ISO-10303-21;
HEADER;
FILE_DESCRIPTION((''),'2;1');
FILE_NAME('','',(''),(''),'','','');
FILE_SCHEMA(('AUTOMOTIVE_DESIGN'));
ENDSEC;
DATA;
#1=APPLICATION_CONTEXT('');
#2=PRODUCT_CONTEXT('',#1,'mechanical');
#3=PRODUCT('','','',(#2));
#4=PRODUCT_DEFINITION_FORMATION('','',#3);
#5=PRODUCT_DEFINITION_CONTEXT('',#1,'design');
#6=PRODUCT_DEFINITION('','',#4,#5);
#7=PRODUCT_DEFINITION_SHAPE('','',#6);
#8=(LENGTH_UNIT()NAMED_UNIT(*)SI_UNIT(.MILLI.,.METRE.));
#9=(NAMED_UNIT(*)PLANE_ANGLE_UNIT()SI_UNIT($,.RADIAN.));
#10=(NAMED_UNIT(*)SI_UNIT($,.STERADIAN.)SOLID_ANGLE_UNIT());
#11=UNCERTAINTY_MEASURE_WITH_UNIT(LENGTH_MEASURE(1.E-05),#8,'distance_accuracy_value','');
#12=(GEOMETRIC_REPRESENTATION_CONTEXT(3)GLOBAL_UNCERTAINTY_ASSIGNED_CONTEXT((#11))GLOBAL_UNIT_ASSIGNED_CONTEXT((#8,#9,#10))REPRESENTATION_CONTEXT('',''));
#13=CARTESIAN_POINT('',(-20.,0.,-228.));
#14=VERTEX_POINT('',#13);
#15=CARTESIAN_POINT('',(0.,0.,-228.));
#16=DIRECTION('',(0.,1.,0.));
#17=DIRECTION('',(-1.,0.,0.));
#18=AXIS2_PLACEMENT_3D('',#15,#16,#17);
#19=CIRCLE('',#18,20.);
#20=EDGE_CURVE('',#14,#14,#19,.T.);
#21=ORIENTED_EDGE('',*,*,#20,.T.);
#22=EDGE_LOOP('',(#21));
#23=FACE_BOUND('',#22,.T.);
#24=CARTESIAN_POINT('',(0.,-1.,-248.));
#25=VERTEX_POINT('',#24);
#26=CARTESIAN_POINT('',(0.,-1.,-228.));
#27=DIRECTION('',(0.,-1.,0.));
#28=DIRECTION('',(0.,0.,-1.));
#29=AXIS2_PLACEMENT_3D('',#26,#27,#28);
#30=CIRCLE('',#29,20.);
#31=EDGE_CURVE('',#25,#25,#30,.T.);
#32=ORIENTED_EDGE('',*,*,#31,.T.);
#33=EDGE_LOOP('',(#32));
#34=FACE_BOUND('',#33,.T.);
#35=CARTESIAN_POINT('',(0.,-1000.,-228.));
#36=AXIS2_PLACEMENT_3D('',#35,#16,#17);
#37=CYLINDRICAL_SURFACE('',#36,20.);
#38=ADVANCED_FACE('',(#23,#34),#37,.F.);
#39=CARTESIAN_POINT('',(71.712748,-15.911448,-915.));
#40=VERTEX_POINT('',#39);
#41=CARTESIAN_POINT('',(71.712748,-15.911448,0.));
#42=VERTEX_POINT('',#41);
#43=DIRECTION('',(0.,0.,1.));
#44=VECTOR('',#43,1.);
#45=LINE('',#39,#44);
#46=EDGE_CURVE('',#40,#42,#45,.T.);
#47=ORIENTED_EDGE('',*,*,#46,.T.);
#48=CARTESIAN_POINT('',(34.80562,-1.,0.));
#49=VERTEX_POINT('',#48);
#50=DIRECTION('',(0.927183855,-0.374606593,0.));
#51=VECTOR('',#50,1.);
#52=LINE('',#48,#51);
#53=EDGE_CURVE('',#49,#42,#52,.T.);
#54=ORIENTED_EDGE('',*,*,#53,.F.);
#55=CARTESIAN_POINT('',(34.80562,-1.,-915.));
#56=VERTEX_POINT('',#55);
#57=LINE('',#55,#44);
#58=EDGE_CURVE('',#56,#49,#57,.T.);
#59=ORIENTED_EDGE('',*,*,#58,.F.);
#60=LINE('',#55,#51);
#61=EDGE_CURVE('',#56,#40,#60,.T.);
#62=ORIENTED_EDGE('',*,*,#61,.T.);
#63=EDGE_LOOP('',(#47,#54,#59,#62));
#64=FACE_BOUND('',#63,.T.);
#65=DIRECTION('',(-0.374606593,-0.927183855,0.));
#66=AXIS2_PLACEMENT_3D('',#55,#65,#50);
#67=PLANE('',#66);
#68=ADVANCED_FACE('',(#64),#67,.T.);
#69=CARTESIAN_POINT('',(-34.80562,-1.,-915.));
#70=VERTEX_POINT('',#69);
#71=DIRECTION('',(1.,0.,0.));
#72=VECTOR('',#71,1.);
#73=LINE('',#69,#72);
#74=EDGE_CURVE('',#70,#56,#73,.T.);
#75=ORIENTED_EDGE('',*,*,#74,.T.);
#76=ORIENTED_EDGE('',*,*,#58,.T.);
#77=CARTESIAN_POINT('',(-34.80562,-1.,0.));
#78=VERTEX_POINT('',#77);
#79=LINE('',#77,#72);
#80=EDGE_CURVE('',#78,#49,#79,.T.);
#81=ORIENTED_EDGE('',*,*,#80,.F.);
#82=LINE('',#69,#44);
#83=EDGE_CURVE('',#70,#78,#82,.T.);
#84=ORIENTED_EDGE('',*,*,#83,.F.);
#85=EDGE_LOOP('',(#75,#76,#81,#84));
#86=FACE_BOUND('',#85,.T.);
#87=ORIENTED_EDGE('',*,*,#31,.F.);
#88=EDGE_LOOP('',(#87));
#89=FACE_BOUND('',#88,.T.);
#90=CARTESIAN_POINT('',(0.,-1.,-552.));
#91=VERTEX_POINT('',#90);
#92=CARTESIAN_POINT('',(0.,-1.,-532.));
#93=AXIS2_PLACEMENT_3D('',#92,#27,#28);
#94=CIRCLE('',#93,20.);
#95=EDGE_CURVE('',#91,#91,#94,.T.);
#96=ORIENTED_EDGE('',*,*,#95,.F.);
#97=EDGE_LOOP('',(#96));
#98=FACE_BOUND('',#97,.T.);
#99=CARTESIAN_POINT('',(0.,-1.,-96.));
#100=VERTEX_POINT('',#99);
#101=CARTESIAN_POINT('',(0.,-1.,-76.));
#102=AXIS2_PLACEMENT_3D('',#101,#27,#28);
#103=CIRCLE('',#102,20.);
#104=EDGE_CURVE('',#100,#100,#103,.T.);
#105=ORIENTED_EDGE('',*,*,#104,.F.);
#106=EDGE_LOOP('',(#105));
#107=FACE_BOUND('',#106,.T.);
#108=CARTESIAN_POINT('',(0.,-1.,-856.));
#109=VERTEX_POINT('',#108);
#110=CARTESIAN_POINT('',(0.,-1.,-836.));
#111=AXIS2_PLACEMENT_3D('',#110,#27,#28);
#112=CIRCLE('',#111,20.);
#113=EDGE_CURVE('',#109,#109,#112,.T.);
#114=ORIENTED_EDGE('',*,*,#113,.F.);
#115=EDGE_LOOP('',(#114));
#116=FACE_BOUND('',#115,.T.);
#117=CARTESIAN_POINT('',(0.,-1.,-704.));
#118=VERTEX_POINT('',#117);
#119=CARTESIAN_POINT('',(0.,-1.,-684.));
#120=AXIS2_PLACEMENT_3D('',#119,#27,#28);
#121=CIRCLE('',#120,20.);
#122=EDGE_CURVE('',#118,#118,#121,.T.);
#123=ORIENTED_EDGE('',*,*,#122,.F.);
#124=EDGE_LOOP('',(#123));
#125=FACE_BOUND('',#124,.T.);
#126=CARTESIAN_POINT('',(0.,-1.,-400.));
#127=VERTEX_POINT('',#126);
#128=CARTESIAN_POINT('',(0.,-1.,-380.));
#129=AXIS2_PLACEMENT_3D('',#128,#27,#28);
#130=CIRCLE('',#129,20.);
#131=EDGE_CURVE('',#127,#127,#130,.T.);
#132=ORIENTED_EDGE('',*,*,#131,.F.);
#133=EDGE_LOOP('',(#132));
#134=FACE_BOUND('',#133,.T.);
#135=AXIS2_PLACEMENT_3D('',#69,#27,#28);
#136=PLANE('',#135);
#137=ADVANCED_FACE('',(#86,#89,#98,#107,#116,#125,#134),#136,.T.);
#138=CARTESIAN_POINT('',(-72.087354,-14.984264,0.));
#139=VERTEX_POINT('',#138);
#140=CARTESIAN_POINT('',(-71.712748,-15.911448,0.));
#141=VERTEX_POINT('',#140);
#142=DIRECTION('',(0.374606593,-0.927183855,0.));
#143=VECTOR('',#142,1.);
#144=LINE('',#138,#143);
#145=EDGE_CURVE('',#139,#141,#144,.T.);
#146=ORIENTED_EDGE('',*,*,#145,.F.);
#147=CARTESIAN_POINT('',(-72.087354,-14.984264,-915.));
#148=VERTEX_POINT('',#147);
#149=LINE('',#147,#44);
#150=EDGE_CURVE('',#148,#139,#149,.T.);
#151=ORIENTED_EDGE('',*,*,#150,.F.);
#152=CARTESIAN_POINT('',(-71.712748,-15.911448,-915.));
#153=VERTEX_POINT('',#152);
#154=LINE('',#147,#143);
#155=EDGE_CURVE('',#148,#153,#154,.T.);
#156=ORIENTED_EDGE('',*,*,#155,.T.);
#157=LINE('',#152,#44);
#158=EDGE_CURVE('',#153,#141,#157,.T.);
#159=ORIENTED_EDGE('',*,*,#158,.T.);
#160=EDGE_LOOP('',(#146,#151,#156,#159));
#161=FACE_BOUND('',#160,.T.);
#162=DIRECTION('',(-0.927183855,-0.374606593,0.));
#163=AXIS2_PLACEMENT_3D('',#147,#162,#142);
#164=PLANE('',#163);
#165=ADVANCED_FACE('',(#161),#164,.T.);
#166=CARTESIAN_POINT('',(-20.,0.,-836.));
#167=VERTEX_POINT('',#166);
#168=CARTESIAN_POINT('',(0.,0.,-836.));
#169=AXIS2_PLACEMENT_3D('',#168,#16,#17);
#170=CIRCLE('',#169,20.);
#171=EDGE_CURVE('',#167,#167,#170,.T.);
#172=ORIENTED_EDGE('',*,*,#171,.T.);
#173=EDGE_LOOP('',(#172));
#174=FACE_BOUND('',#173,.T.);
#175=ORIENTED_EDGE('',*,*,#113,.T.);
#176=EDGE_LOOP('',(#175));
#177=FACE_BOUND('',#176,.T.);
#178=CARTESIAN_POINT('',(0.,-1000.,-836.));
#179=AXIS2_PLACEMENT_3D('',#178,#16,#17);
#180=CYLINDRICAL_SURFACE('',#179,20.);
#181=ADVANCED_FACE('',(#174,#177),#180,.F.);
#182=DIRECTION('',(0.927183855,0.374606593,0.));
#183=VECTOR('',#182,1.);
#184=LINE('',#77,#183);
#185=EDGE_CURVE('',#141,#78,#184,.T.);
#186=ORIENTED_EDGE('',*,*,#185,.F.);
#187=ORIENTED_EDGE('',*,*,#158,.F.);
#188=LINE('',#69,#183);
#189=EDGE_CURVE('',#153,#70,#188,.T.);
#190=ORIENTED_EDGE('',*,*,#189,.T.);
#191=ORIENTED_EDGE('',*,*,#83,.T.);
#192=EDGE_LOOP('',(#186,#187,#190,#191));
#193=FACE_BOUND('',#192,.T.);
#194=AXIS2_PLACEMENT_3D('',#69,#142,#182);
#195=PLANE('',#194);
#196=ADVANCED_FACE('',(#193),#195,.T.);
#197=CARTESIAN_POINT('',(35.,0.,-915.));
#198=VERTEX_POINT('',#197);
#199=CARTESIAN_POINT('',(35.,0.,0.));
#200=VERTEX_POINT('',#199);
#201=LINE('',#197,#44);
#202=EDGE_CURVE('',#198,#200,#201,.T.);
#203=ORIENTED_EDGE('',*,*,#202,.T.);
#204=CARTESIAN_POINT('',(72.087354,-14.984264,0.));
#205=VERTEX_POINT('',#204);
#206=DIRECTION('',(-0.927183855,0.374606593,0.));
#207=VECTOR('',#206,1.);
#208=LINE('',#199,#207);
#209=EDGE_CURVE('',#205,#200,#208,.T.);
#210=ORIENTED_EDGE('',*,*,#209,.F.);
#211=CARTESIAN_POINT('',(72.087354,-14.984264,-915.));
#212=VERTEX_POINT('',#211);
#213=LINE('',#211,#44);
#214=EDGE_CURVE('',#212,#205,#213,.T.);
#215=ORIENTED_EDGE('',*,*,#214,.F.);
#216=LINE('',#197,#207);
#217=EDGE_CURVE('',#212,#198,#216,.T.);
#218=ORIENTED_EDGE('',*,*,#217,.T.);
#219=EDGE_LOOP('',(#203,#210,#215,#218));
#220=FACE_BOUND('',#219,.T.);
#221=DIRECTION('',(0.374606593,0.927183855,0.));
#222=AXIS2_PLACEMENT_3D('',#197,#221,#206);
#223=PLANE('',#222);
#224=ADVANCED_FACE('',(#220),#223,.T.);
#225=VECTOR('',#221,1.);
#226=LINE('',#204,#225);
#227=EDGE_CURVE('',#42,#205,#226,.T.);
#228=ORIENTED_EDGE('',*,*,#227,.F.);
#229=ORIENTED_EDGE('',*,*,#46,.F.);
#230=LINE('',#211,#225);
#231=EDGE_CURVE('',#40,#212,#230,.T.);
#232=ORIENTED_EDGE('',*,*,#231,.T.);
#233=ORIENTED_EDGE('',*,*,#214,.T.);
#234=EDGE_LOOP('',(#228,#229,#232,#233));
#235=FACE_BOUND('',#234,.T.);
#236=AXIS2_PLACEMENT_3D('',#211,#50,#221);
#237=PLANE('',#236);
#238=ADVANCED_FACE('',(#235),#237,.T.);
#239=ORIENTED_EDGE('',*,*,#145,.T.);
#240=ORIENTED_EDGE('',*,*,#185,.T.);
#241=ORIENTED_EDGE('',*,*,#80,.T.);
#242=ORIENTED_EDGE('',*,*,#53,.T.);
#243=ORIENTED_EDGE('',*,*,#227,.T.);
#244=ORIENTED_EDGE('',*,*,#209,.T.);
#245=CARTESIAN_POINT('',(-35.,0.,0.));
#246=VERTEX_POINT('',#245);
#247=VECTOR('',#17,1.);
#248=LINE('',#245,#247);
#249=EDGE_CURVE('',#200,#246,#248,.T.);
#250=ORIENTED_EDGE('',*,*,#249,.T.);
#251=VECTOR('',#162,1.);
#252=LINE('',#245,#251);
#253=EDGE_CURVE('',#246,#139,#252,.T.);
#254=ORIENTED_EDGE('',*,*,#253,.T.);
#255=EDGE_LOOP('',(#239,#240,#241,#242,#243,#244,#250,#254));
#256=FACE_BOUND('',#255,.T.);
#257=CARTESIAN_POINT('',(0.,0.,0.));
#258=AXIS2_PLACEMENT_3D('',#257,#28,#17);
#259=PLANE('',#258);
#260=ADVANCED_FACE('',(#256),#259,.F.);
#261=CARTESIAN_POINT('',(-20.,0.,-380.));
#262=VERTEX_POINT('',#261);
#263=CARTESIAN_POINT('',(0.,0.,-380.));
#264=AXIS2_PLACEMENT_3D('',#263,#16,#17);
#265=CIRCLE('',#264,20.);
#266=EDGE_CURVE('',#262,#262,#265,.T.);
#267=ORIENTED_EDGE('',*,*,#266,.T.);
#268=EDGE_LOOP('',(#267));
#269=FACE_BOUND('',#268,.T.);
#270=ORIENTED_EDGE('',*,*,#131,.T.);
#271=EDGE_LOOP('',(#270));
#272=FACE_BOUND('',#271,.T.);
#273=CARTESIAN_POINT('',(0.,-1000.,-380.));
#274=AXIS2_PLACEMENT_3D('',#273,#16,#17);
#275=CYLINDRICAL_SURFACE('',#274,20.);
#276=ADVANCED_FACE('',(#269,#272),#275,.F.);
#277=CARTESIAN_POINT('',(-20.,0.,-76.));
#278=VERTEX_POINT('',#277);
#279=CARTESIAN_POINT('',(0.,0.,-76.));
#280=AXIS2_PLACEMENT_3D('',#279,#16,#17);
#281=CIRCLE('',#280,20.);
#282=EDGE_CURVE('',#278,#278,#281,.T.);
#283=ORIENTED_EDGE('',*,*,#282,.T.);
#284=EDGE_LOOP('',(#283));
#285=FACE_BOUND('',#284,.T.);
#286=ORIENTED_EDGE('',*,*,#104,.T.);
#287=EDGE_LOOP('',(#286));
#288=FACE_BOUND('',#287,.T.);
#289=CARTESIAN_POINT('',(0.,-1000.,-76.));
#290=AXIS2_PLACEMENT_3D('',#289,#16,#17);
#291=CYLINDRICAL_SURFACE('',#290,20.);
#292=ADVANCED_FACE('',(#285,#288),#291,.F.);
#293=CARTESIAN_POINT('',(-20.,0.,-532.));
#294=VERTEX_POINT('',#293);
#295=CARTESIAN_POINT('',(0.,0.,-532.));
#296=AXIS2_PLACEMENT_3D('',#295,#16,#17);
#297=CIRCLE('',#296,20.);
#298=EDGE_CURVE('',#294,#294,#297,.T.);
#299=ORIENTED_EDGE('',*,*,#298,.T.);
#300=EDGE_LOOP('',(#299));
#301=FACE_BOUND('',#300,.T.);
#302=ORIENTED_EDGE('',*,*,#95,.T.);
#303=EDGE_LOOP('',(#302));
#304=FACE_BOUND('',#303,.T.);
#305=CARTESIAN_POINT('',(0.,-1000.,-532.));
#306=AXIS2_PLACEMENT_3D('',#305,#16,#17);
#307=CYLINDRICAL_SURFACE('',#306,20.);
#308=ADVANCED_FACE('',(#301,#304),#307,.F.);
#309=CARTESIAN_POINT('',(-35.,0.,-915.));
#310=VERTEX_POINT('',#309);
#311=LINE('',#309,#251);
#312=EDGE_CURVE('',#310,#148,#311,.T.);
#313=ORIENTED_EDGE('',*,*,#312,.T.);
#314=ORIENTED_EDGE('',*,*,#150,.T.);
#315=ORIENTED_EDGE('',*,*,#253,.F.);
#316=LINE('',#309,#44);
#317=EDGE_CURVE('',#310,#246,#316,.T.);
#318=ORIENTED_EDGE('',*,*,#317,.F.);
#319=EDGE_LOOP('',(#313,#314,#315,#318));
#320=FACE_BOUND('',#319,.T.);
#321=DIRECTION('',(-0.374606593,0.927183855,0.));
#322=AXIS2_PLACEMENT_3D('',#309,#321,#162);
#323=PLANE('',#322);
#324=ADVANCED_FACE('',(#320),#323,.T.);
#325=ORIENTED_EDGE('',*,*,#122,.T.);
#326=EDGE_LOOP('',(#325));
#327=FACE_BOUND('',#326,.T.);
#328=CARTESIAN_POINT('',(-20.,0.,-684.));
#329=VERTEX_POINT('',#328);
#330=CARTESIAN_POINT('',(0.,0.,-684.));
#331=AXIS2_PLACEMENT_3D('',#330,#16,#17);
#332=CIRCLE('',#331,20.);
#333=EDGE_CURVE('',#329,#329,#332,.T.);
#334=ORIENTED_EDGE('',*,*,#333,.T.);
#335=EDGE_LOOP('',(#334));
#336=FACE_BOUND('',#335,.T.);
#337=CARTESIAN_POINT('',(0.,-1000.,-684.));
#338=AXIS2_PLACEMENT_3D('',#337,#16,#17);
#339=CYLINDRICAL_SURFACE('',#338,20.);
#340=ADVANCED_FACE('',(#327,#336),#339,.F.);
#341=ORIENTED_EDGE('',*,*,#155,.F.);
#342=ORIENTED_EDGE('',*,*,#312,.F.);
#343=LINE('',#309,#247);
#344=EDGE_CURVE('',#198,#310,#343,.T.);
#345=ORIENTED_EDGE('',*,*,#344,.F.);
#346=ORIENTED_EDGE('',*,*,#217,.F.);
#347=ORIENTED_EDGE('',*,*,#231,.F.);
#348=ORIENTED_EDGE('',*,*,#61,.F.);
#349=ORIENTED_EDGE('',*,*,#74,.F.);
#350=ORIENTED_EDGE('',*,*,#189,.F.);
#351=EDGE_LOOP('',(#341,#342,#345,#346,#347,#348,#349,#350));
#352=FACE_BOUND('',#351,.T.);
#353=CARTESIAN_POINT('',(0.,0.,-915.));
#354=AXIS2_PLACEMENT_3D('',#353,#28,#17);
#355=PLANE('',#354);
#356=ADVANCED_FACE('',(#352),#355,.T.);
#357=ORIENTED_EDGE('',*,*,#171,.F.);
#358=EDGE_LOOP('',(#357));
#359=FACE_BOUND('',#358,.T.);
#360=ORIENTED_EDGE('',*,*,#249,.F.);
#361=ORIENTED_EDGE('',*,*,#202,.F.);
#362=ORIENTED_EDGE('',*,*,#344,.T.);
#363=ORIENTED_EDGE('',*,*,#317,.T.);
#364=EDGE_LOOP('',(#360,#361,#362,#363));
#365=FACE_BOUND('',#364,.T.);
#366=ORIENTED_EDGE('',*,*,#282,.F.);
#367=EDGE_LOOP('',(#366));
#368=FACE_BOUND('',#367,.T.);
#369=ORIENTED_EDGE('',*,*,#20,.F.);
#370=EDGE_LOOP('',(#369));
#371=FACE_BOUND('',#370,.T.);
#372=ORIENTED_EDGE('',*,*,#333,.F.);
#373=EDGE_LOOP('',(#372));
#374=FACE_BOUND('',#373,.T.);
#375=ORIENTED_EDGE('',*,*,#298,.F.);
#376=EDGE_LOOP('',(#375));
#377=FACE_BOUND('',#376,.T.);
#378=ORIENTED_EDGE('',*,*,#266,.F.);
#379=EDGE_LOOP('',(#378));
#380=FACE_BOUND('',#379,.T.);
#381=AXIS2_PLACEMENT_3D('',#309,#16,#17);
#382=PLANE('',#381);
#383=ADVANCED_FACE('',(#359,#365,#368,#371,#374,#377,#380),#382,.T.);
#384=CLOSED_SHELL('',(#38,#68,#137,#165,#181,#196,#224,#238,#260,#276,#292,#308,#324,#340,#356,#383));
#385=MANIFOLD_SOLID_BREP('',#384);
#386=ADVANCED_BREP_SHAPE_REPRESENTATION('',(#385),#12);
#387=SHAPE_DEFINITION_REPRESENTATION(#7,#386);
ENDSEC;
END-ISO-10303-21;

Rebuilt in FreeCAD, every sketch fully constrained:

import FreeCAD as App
import Part
import Sketcher
Q = App.Units.Quantity


def add_polygon(sketch, points):
    """Adds a closed chain of lines whose ends are joined by coincident constraints."""
    first, n = sketch.GeometryCount, len(points)
    for a, b in zip(points, points[1:] + points[:1]):
        sketch.addGeometry(Part.LineSegment(App.Vector(*a, 0), App.Vector(*b, 0)), False)
    for i in range(n):
        sketch.addConstraint(Sketcher.Constraint("Coincident", first + i, 2, first + (i + 1) % n, 1))

doc = App.newDocument("Part")
params = doc.addObject("Spreadsheet::Sheet", "Params")
for row, (alias, value) in enumerate([
    ("sketch1_width", "70 mm"),
    ("sketch1_length", "40 mm"),
    ("sketch1_length2", "1 mm"),
    ("pad1_length", "915 mm"),
    ("sketch2_diameter", "40 mm"),
    ("pocket1_length", "1000 mm"),
], start=1):
    params.set(f"A{row}", alias)
    params.set(f"B{row}", "=" + value)
    params.setAlias(f"B{row}", alias)

body = doc.addObject("PartDesign::Body", "Body")

sketch1 = doc.addObject("Sketcher::SketchObject", "Sketch")
body.addObject(sketch1)
sketch1.AttachmentSupport = (doc.XY_Plane, [""])
sketch1.MapMode = "FlatFace"
add_polygon(sketch1, [(35, 0), (-35, 0), (-72.1, -15), (-71.7, -15.9), (-34.8, -1), (34.8, -1), (71.7, -15.9), (72.1, -15)])
sketch1.addConstraint(Sketcher.Constraint("Horizontal", 0))
sketch1.addConstraint(Sketcher.Constraint("Horizontal", 4))
sketch1.addConstraint(Sketcher.Constraint("Symmetric", 0, 2, 7, 2, -1, 1))
sketch1.addConstraint(Sketcher.Constraint("Symmetric", 2, 2, 5, 2, -2))
sketch1.addConstraint(Sketcher.Constraint("Symmetric", 1, 2, 6, 2, -2))
sketch1.addConstraint(Sketcher.Constraint("Perpendicular", 1, 2))
sketch1.addConstraint(Sketcher.Constraint("Perpendicular", 2, 3))
sketch1.addConstraint(Sketcher.Constraint("Perpendicular", 5, 6))
sketch1.addConstraint(Sketcher.Constraint("DistanceX", 0, 2, 0, 1, Q("70 mm")))
sketch1.addConstraint(Sketcher.Constraint("Angle", 1, Q("-158 deg")))
sketch1.addConstraint(Sketcher.Constraint("Distance", 1, Q("40 mm")))
sketch1.addConstraint(Sketcher.Constraint("Distance", 2, Q("1 mm")))
sketch1.addConstraint(Sketcher.Constraint("DistanceY", 3, 2, -1, 1, Q("1 mm")))
sketch1.setExpression("Constraints[16]", "Params.sketch1_width")
sketch1.setExpression("Constraints[18]", "Params.sketch1_length")
sketch1.setExpression("Constraints[19]", "Params.sketch1_length2")
pad1 = doc.addObject("PartDesign::Pad", "Pad")
body.addObject(pad1)
pad1.Profile = sketch1
pad1.setExpression("Length", "Params.pad1_length")
pad1.Reversed = True

sketch2 = doc.addObject("Sketcher::SketchObject", "Sketch001")
body.addObject(sketch2)
sketch2.AttachmentSupport = (doc.XZ_Plane, [""])
sketch2.MapMode = "FlatFace"
sketch2.addGeometry(Part.Circle(App.Vector(0, -76, 0), App.Vector(0, 0, 1), 20), False)
sketch2.addGeometry(Part.Circle(App.Vector(0, -228, 0), App.Vector(0, 0, 1), 20), False)
sketch2.addGeometry(Part.Circle(App.Vector(0, -380, 0), App.Vector(0, 0, 1), 20), False)
sketch2.addGeometry(Part.Circle(App.Vector(0, -532, 0), App.Vector(0, 0, 1), 20), False)
sketch2.addGeometry(Part.Circle(App.Vector(0, -684, 0), App.Vector(0, 0, 1), 20), False)
sketch2.addGeometry(Part.Circle(App.Vector(0, -836, 0), App.Vector(0, 0, 1), 20), False)
sketch2.addConstraint(Sketcher.Constraint("Equal", 0, 1))
sketch2.addConstraint(Sketcher.Constraint("Equal", 1, 2))
sketch2.addConstraint(Sketcher.Constraint("Equal", 2, 3))
sketch2.addConstraint(Sketcher.Constraint("Equal", 3, 4))
sketch2.addConstraint(Sketcher.Constraint("Equal", 4, 5))
sketch2.addConstraint(Sketcher.Constraint("PointOnObject", 0, 3, -2))
sketch2.addConstraint(Sketcher.Constraint("PointOnObject", 1, 3, -2))
sketch2.addConstraint(Sketcher.Constraint("PointOnObject", 2, 3, -2))
sketch2.addConstraint(Sketcher.Constraint("PointOnObject", 3, 3, -2))
sketch2.addConstraint(Sketcher.Constraint("PointOnObject", 4, 3, -2))
sketch2.addConstraint(Sketcher.Constraint("PointOnObject", 5, 3, -2))
sketch2.addConstraint(Sketcher.Constraint("Diameter", 0, Q("40 mm")))
sketch2.addConstraint(Sketcher.Constraint("DistanceY", 0, 3, -1, 1, Q("76 mm")))
sketch2.addConstraint(Sketcher.Constraint("DistanceY", 1, 3, -1, 1, Q("228 mm")))
sketch2.addConstraint(Sketcher.Constraint("DistanceY", 2, 3, -1, 1, Q("380 mm")))
sketch2.addConstraint(Sketcher.Constraint("DistanceY", 3, 3, -1, 1, Q("532 mm")))
sketch2.addConstraint(Sketcher.Constraint("DistanceY", 4, 3, -1, 1, Q("684 mm")))
sketch2.addConstraint(Sketcher.Constraint("DistanceY", 5, 3, -1, 1, Q("836 mm")))
sketch2.setExpression("Constraints[11]", "Params.sketch2_diameter")
pocket1 = doc.addObject("PartDesign::Pocket", "Pocket")
body.addObject(pocket1)
pocket1.Profile = sketch2
pocket1.setExpression("Length", "Params.pocket1_length")
pocket1.Reversed = True

doc.recompute()
